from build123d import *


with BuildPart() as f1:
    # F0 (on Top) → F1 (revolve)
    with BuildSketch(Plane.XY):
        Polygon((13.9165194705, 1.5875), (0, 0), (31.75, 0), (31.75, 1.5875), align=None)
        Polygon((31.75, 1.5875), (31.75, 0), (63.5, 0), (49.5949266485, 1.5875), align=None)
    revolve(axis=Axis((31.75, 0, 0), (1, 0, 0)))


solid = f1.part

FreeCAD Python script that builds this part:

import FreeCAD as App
import Part
import Sketcher
Q = App.Units.Quantity

doc = App.newDocument("Part")
body = doc.addObject("PartDesign::Body", "Body")

# Sketch on XY plane
sketch1 = body.newObject("Sketcher::SketchObject", "Sketch")
sketch1.AttachmentSupport = (doc.getObject("XY_Plane"), [""])
sketch1.MapMode = "FlatFace"
sketch1.addGeometry(Part.LineSegment(App.Vector(14, 2, 0), App.Vector(0, 0, 0)), False)
sketch1.addGeometry(Part.LineSegment(App.Vector(0, 0, 0), App.Vector(64, 0, 0)), False)
sketch1.addGeometry(Part.LineSegment(App.Vector(64, 0, 0), App.Vector(50, 2, 0)), False)
sketch1.addGeometry(Part.LineSegment(App.Vector(50, 2, 0), App.Vector(14, 2, 0)), False)
sketch1.addConstraint(Sketcher.Constraint("Coincident", 0, 2, 1, 1))
sketch1.addConstraint(Sketcher.Constraint("Coincident", 1, 2, 2, 1))
sketch1.addConstraint(Sketcher.Constraint("Coincident", 2, 2, 3, 1))
sketch1.addConstraint(Sketcher.Constraint("Coincident", 3, 2, 0, 1))
sketch1.addConstraint(Sketcher.Constraint("Horizontal", 1))
sketch1.addConstraint(Sketcher.Constraint("Horizontal", 3))
sketch1.addConstraint(Sketcher.Constraint("Coincident", 0, 2, -1, 1))
sketch1.addConstraint(Sketcher.Constraint("DistanceX", 1, 1, 1, 2, Q("2.5 in")))
sketch1.addConstraint(Sketcher.Constraint("Distance", 2, Q("0.551 in")))
sketch1.addConstraint(Sketcher.Constraint("DistanceY", -1, 1, 2, 2, Q("0.0625 in")))
sketch1.addConstraint(Sketcher.Constraint("DistanceX", 3, 2, 3, 1, Q("35.678407 mm")))
revolution = body.newObject("PartDesign::Revolution", "Revolution")
revolution.Profile = sketch1
revolution.ReferenceAxis = (sketch1, ["H_Axis"])
revolution.Angle = 360

doc.recompute()
